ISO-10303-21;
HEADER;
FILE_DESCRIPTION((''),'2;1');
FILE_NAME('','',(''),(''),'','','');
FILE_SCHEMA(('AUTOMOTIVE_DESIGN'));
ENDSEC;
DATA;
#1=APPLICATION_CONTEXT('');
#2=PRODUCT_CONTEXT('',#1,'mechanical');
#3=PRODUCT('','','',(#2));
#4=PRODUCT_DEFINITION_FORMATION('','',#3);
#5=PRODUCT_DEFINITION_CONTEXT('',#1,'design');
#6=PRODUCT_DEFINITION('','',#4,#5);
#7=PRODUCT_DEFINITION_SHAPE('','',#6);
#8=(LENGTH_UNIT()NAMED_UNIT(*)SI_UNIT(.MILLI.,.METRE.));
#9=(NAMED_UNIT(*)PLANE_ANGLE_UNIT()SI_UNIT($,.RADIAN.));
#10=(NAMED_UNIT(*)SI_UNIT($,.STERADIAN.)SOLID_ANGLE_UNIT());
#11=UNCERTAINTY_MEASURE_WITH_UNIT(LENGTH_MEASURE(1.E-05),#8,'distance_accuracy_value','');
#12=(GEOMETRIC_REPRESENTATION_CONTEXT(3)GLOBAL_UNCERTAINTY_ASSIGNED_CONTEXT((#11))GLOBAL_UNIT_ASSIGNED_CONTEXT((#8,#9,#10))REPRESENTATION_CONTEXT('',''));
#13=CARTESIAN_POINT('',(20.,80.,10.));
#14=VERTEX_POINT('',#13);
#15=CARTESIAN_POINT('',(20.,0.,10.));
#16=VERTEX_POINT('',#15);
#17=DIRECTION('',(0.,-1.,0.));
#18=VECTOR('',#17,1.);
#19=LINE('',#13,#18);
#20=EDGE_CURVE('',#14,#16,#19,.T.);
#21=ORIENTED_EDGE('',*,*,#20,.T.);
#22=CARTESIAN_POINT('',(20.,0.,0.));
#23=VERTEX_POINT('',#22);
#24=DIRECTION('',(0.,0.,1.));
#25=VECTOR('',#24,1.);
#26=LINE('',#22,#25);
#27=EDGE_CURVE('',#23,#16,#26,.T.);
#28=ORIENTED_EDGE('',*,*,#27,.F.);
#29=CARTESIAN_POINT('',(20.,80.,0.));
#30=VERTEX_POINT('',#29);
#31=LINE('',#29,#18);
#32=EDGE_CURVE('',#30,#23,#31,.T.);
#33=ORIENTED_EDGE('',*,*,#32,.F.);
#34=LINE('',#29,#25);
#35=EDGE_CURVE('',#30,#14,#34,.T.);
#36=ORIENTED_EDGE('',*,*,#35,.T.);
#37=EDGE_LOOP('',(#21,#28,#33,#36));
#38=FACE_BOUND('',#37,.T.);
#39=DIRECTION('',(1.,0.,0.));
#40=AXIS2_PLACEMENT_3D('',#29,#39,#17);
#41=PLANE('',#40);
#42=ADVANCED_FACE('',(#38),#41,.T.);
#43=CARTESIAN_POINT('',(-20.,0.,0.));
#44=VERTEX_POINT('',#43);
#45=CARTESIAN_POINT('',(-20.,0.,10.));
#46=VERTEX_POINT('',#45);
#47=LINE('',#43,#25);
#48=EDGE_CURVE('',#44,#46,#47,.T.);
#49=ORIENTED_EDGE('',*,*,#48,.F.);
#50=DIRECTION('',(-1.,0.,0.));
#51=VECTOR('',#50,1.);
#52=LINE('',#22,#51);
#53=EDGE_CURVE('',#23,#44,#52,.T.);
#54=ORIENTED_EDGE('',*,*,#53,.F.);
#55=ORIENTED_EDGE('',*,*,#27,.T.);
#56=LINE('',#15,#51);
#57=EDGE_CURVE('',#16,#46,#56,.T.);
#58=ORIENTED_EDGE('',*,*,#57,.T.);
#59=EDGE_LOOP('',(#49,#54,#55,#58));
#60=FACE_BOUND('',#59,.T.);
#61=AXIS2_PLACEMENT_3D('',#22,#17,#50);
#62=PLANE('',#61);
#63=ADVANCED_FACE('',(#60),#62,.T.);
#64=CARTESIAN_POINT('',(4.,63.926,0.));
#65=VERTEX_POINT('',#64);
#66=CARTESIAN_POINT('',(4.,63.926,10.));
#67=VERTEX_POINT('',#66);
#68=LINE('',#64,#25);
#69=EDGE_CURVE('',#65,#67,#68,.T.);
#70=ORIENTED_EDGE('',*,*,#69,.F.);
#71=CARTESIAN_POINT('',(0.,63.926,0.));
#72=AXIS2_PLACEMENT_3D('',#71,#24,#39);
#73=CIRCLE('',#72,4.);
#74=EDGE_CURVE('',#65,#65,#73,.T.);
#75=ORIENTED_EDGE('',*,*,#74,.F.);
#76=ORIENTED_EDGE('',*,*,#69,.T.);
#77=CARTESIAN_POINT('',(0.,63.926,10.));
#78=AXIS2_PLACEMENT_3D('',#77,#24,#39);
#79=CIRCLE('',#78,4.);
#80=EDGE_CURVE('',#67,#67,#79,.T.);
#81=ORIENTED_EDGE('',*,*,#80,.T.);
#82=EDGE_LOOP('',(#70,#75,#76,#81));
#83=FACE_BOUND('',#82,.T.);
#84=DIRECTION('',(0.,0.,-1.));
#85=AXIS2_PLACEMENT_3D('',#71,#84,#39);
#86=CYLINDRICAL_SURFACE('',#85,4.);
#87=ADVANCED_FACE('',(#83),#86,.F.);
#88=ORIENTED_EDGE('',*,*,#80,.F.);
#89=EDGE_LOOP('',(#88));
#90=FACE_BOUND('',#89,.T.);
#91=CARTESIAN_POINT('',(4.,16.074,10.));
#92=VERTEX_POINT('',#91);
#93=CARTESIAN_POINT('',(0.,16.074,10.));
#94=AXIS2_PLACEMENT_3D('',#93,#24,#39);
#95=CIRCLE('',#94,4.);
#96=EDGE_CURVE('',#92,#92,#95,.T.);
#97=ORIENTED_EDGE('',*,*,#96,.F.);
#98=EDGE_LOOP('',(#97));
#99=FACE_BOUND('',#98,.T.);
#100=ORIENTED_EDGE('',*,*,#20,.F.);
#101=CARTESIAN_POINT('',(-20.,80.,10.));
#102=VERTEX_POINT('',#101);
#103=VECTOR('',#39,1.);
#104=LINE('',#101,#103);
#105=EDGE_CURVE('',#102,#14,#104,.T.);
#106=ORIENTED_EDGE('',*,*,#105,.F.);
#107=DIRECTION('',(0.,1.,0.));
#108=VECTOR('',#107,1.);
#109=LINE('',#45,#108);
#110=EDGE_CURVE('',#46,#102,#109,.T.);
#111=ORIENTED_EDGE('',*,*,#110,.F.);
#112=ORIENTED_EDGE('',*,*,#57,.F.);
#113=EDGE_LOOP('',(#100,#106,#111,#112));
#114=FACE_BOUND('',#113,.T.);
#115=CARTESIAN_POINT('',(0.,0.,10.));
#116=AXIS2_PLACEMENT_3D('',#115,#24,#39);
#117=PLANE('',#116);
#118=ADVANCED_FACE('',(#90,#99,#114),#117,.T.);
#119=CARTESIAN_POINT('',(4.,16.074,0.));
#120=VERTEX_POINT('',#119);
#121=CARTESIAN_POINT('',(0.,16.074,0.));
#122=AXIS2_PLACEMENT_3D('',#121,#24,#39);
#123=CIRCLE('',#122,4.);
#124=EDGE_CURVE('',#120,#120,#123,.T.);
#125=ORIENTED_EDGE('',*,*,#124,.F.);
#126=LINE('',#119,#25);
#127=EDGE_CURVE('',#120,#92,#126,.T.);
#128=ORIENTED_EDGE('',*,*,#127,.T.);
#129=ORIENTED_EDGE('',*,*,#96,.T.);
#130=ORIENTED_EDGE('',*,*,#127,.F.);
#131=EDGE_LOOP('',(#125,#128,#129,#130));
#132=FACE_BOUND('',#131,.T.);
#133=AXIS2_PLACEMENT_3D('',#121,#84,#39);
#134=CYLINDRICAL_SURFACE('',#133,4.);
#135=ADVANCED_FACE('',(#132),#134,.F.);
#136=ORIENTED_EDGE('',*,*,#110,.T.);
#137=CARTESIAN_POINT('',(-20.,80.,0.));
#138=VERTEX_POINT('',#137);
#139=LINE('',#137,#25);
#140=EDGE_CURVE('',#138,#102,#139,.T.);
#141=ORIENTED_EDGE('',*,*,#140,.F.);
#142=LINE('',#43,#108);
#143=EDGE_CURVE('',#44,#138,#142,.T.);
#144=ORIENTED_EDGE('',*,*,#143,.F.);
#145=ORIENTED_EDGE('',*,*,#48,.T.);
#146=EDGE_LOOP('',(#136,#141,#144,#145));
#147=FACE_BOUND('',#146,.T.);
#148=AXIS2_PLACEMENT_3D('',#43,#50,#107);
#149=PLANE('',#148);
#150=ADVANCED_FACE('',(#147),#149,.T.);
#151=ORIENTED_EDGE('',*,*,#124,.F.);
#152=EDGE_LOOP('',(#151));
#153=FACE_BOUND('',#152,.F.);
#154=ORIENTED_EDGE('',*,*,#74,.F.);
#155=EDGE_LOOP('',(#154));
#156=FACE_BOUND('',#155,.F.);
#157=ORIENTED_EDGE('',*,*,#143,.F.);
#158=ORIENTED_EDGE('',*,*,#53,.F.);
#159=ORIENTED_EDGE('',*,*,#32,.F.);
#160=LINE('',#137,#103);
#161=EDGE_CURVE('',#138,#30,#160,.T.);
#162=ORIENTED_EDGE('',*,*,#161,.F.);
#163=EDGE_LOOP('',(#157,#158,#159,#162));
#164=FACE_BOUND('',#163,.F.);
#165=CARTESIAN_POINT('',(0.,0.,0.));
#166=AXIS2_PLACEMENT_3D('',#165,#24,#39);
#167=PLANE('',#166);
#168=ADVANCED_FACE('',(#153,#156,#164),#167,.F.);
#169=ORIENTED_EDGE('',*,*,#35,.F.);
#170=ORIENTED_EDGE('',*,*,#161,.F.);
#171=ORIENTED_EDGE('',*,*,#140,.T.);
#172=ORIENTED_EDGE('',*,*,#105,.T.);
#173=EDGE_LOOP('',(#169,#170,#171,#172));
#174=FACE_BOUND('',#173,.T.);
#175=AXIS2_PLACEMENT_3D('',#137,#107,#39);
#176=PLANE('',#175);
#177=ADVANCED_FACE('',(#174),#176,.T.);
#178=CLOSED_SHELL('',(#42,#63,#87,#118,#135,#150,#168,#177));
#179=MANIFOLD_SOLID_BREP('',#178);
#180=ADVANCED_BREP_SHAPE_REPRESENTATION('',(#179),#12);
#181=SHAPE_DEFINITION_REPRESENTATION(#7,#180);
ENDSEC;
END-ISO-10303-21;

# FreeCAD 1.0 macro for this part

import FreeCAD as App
import Part
import Sketcher

V = App.Vector
Q = App.Units.Quantity


def add_polygon(sketch, points):
    """Adds a closed chain of lines whose ends are joined by coincident constraints."""
    first, n = sketch.GeometryCount, len(points)
    for a, b in zip(points, points[1:] + points[:1]):
        sketch.addGeometry(Part.LineSegment(App.Vector(*a, 0), App.Vector(*b, 0)), False)
    for i in range(n):
        sketch.addConstraint(Sketcher.Constraint("Coincident", first + i, 2, first + (i + 1) % n, 1))

doc = App.newDocument("Part")
body = doc.addObject("PartDesign::Body", "Body")

sketch1 = body.newObject("Sketcher::SketchObject", "Sketch")
sketch1.AttachmentSupport = (doc.getObject("XY_Plane"), [""])
sketch1.MapMode = "FlatFace"
add_polygon(sketch1, [(20, 80), (-20, 80), (-20, 0), (20, 0)])
sketch1.addGeometry(Part.Circle(V(0, 16.1, 0), V(0, 0, 1), 4), False)
sketch1.addGeometry(Part.Circle(V(0, 63.9, 0), V(0, 0, 1), 4), False)
sketch1.addConstraint([
    Sketcher.Constraint("Horizontal", 0),
    Sketcher.Constraint("Vertical", 1),
    Sketcher.Constraint("Horizontal", 2),
    Sketcher.Constraint("Vertical", 3),
    Sketcher.Constraint("Equal", 4, 5),
    Sketcher.Constraint("Symmetric", 1, 2, 2, 2, -1, 1),
    Sketcher.Constraint("PointOnObject", 4, 3, -2),
    Sketcher.Constraint("PointOnObject", 5, 3, -2),
    Sketcher.Constraint("Diameter", 4, Q("8 mm")),
    Sketcher.Constraint("DistanceX", 0, 2, 0, 1, Q("40 mm")),
    Sketcher.Constraint("DistanceY", 1, 2, 1, 1, Q("80 mm")),
    Sketcher.Constraint("DistanceY", -1, 1, 4, 3, Q("16.074 mm")),
    Sketcher.Constraint("DistanceY", 5, 3, 0, 2, Q("16.074 mm")),
])
pad1 = body.newObject("PartDesign::Pad", "Pad")
pad1.Profile = sketch1
pad1.Length = 10

doc.recompute()
